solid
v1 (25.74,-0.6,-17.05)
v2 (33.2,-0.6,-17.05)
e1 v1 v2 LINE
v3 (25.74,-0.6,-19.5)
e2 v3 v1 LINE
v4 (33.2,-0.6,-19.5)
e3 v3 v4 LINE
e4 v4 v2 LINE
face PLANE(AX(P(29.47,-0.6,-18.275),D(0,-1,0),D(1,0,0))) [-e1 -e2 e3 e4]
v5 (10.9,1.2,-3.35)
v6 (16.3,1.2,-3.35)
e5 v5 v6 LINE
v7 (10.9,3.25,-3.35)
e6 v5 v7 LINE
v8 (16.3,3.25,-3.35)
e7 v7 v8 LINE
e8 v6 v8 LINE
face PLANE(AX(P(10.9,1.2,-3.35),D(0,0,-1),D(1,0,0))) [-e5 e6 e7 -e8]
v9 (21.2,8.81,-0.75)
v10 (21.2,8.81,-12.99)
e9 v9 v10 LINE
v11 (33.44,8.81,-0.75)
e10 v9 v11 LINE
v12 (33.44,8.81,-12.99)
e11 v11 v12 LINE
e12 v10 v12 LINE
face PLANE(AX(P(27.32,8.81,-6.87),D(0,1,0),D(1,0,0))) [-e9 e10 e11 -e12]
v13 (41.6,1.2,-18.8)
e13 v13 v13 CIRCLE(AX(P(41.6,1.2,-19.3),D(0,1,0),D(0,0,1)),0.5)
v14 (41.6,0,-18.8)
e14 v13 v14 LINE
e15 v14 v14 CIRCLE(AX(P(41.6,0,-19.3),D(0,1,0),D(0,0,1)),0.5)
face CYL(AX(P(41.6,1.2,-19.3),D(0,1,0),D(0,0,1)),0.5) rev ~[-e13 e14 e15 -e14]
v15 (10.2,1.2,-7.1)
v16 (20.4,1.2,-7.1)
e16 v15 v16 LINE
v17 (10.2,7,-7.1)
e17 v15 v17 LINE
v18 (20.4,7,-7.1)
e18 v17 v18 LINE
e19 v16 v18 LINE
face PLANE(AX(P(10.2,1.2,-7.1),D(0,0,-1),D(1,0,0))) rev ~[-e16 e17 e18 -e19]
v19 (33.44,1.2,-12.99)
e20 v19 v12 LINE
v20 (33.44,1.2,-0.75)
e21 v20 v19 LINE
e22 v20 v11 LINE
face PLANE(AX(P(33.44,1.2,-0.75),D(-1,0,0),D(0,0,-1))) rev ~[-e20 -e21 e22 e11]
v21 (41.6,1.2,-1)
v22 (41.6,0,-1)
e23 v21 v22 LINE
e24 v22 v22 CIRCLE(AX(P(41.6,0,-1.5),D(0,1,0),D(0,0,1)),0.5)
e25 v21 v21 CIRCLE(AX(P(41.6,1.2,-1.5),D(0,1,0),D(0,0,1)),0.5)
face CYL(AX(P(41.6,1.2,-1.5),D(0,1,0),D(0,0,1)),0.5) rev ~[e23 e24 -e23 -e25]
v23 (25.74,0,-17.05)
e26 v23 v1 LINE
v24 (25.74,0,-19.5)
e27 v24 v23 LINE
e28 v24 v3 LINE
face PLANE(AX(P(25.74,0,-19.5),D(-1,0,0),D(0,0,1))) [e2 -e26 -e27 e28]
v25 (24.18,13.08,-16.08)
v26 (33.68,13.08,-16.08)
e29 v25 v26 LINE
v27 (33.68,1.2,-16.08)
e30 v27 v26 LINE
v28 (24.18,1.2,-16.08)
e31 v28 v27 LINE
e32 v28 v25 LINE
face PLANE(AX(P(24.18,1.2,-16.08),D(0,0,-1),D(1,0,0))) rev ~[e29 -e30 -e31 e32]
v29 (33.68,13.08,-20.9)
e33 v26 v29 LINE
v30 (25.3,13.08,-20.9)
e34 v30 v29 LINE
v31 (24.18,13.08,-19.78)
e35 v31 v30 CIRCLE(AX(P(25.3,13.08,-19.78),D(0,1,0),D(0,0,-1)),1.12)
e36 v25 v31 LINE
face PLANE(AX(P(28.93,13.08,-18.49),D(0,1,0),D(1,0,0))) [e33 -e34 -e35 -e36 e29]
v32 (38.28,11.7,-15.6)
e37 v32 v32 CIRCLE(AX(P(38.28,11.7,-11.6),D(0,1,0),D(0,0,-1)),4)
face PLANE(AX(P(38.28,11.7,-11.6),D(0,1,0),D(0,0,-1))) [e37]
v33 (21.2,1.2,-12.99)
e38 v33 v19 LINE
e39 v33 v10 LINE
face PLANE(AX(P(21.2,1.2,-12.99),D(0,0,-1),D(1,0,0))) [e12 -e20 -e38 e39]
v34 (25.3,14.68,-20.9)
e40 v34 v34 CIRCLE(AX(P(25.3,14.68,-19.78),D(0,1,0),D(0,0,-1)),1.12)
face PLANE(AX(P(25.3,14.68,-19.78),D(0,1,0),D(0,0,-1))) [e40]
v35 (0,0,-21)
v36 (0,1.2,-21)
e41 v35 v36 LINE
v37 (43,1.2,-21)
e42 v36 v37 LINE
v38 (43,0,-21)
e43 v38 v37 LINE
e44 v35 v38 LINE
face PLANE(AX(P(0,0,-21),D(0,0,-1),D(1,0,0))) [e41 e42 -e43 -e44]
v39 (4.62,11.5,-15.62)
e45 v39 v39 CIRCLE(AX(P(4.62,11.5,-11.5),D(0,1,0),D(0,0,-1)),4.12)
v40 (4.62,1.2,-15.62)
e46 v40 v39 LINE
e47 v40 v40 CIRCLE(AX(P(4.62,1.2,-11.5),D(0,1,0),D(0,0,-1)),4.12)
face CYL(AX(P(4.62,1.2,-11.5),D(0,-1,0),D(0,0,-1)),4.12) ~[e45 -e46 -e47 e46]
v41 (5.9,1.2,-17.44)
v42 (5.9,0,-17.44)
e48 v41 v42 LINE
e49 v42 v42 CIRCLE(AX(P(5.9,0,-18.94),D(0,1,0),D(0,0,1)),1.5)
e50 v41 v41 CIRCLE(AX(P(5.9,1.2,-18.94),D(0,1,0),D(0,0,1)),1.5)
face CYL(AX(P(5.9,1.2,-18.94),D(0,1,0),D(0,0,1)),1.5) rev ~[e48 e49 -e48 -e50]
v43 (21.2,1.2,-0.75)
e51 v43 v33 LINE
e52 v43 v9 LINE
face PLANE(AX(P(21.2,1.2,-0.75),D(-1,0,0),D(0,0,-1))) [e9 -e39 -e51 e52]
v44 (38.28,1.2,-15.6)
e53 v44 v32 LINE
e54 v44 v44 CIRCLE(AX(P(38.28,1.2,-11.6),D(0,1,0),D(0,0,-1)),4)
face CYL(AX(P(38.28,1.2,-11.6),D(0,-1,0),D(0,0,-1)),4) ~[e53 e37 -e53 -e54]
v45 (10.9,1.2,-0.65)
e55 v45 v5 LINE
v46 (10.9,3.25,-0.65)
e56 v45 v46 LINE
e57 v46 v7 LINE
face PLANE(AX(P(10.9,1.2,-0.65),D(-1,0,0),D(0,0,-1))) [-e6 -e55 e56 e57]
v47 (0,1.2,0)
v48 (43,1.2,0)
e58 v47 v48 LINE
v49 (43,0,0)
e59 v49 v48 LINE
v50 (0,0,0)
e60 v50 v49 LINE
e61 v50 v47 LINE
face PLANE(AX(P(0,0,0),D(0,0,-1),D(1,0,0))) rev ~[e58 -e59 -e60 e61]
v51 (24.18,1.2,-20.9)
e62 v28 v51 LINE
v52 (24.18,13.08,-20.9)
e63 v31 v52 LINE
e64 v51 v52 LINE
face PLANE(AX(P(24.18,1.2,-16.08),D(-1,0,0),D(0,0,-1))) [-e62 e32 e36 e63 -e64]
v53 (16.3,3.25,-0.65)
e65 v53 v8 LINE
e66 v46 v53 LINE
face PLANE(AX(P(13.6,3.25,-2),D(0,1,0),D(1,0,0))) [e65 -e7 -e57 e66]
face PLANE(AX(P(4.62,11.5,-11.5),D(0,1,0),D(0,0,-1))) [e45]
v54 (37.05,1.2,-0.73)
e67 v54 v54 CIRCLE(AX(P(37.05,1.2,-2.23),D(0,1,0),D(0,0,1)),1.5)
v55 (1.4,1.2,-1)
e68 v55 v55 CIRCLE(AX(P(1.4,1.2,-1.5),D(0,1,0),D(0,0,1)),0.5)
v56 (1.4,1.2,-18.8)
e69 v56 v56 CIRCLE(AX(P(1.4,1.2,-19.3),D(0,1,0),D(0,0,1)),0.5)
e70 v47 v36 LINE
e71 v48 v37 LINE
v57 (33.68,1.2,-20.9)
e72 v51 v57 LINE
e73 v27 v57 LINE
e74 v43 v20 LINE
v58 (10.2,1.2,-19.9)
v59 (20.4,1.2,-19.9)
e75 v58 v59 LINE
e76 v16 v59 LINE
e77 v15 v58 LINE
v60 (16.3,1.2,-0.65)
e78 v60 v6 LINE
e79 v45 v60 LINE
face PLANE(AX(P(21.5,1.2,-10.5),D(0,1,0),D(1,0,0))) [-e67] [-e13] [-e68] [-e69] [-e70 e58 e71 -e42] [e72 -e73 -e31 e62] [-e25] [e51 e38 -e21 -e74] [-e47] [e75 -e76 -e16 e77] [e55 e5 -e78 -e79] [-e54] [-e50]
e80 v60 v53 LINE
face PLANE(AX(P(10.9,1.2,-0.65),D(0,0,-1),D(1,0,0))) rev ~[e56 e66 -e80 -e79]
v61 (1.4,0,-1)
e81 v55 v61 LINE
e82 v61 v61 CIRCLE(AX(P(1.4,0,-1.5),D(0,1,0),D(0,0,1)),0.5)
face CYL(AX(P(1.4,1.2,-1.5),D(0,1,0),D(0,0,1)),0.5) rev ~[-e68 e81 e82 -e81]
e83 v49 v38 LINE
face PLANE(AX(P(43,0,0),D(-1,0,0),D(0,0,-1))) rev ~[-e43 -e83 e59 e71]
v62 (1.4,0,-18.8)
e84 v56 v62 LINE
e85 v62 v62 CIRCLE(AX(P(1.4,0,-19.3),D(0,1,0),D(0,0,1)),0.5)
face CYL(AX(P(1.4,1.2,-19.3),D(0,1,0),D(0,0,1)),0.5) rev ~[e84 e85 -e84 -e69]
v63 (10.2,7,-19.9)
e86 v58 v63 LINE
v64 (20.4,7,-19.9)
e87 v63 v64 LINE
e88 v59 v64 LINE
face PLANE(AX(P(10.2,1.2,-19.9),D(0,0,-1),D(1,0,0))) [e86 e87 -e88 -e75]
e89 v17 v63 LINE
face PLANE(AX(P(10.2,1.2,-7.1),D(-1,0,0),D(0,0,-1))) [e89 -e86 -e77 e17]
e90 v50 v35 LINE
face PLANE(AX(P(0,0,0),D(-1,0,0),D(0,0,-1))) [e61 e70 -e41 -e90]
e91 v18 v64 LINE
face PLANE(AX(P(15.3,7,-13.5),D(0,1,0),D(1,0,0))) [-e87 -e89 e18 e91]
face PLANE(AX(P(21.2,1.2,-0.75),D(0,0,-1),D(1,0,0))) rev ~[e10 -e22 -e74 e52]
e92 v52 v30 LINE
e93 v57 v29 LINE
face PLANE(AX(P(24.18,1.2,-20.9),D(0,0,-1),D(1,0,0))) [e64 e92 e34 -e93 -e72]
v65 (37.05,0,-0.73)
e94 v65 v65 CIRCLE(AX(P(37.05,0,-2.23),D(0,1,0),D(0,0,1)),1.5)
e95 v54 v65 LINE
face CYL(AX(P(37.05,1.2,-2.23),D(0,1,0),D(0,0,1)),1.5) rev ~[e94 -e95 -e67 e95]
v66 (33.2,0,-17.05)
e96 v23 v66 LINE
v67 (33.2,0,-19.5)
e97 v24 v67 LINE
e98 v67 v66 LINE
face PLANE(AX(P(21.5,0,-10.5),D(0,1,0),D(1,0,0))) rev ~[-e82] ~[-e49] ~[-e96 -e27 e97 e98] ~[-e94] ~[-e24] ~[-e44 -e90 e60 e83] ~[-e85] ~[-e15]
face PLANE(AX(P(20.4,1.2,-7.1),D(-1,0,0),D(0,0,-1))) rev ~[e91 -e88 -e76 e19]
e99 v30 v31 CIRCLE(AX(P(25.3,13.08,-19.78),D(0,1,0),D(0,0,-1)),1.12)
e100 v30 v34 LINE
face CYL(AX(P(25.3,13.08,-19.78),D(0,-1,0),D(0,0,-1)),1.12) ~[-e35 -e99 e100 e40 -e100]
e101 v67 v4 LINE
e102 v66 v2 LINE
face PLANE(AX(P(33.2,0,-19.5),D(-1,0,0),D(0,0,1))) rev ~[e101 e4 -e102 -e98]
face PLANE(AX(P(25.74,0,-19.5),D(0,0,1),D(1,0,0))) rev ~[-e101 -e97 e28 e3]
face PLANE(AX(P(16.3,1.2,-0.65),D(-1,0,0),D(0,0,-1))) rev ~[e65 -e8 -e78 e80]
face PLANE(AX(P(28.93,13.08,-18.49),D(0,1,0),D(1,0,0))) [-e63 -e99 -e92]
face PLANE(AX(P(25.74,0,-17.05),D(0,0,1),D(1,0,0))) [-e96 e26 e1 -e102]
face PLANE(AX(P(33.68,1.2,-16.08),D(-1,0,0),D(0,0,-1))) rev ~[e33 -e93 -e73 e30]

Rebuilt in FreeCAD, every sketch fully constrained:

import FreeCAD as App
import Part
import Sketcher

V = App.Vector
Q = App.Units.Quantity


def add_polygon(sketch, points):
    """Adds a closed chain of lines whose ends are joined by coincident constraints."""
    first, n = sketch.GeometryCount, len(points)
    for a, b in zip(points, points[1:] + points[:1]):
        sketch.addGeometry(Part.LineSegment(App.Vector(*a, 0), App.Vector(*b, 0)), False)
    for i in range(n):
        sketch.addConstraint(Sketcher.Constraint("Coincident", first + i, 2, first + (i + 1) % n, 1))

doc = App.newDocument("Part")
body = doc.addObject("PartDesign::Body", "Body")

# Sketch on XZ plane
sketch1 = doc.addObject("Sketcher::SketchObject", "Sketch")
body.addObject(sketch1)
sketch1.AttachmentSupport = (doc.XZ_Plane, [""])
sketch1.MapMode = "FlatFace"
add_polygon(sketch1, [(0, -21), (0, 0), (43, 0), (43, -21)])  # lines 0-3
sketch1.addConstraint(Sketcher.Constraint("Vertical", 0))
sketch1.addConstraint(Sketcher.Constraint("Horizontal", 1))
sketch1.addConstraint(Sketcher.Constraint("Vertical", 2))
sketch1.addConstraint(Sketcher.Constraint("Horizontal", 3))
sketch1.addConstraint(Sketcher.Constraint("Coincident", 0, 2, -1, 1))
sketch1.addConstraint(Sketcher.Constraint("DistanceX", 1, 1, 1, 2, Q("43 mm")))
sketch1.addConstraint(Sketcher.Constraint("DistanceY", 0, 1, 0, 2, Q("21 mm")))
pad1 = doc.addObject("PartDesign::Pad", "Pad")
body.addObject(pad1)
pad1.Profile = sketch1
pad1.Length = 1.2
pad1.Reversed = True

# Sketch on XZ plane
sketch2 = doc.addObject("Sketcher::SketchObject", "Sketch001")
body.addObject(sketch2)
sketch2.AttachmentSupport = (doc.XZ_Plane, [""])
sketch2.MapMode = "FlatFace"
sketch2.AttachmentOffset = App.Placement(V(0, 0, -1.2), App.Rotation())
sketch2.addGeometry(Part.Circle(V(1.4, -19.3, 0), V(0, 0, 1), 0.5), False)
sketch2.addGeometry(Part.Circle(V(1.4, -1.5, 0), V(0, 0, 1), 0.5), False)
sketch2.addGeometry(Part.Circle(V(41.6, -19.3, 0), V(0, 0, 1), 0.5), False)
sketch2.addGeometry(Part.Circle(V(41.6, -1.5, 0), V(0, 0, 1), 0.5), False)
sketch2.addConstraint(Sketcher.Constraint("Equal", 0, 1))
sketch2.addConstraint(Sketcher.Constraint("Equal", 1, 2))
sketch2.addConstraint(Sketcher.Constraint("Equal", 2, 3))
sketch2.addConstraint(Sketcher.Constraint("Horizontal", 0, 3, 2, 3))
sketch2.addConstraint(Sketcher.Constraint("Horizontal", 1, 3, 3, 3))
sketch2.addConstraint(Sketcher.Constraint("Vertical", 0, 3, 1, 3))
sketch2.addConstraint(Sketcher.Constraint("Vertical", 2, 3, 3, 3))
sketch2.addConstraint(Sketcher.Constraint("Diameter", 0, Q("1 mm")))
sketch2.addConstraint(Sketcher.Constraint("DistanceX", -1, 1, 0, 3, Q("1.4 mm")))
sketch2.addConstraint(Sketcher.Constraint("DistanceY", 0, 3, -1, 1, Q("19.3 mm")))
sketch2.addConstraint(Sketcher.Constraint("DistanceY", 1, 3, -1, 1, Q("1.5 mm")))
sketch2.addConstraint(Sketcher.Constraint("DistanceX", -1, 1, 2, 3, Q("41.6 mm")))
pocket1 = doc.addObject("PartDesign::Pocket", "Pocket")
body.addObject(pocket1)
pocket1.Profile = sketch2
pocket1.Type = "ThroughAll"
pocket1.Reversed = True

# Sketch on XZ plane
sketch3 = doc.addObject("Sketcher::SketchObject", "Sketch002")
body.addObject(sketch3)
sketch3.AttachmentSupport = (doc.XZ_Plane, [""])
sketch3.MapMode = "FlatFace"
sketch3.AttachmentOffset = App.Placement(V(0, 0, -1.2), App.Rotation())
sketch3.addGeometry(Part.Circle(V(5.9, -18.9, 0), V(0, 0, 1), 1.5), False)
sketch3.addGeometry(Part.Circle(V(37, -2.2, 0), V(0, 0, 1), 1.5), False)
sketch3.addConstraint(Sketcher.Constraint("Equal", 0, 1))
sketch3.addConstraint(Sketcher.Constraint("Diameter", 0, Q("3 mm")))
sketch3.addConstraint(Sketcher.Constraint("DistanceX", -1, 1, 0, 3, Q("5.9 mm")))
sketch3.addConstraint(Sketcher.Constraint("DistanceY", 0, 3, -1, 1, Q("18.94 mm")))
sketch3.addConstraint(Sketcher.Constraint("DistanceX", -1, 1, 1, 3, Q("37.05 mm")))
sketch3.addConstraint(Sketcher.Constraint("DistanceY", 1, 3, -1, 1, Q("2.23 mm")))
pocket2 = doc.addObject("PartDesign::Pocket", "Pocket001")
body.addObject(pocket2)
pocket2.Profile = sketch3
pocket2.Type = "ThroughAll"
pocket2.Reversed = True

# Sketch on XZ plane
sketch4 = doc.addObject("Sketcher::SketchObject", "Sketch003")
body.addObject(sketch4)
sketch4.AttachmentSupport = (doc.XZ_Plane, [""])
sketch4.MapMode = "FlatFace"
sketch4.AttachmentOffset = App.Placement(V(0, 0, -1.2), App.Rotation())
add_polygon(sketch4, [(24.2, -20.9), (24.2, -16.1), (33.7, -16.1), (33.7, -20.9)])  # lines 0-3
sketch4.addConstraint(Sketcher.Constraint("Vertical", 0))
sketch4.addConstraint(Sketcher.Constraint("Horizontal", 1))
sketch4.addConstraint(Sketcher.Constraint("Vertical", 2))
sketch4.addConstraint(Sketcher.Constraint("Horizontal", 3))
sketch4.addConstraint(Sketcher.Constraint("DistanceX", 1, 1, 1, 2, Q("9.5 mm")))
sketch4.addConstraint(Sketcher.Constraint("DistanceY", 0, 1, 0, 2, Q("4.82 mm")))
sketch4.addConstraint(Sketcher.Constraint("DistanceY", 2, 2, -1, 1, Q("20.9 mm")))
sketch4.addConstraint(Sketcher.Constraint("DistanceX", -1, 1, 0, 2, Q("24.18 mm")))
pad2 = doc.addObject("PartDesign::Pad", "Pad001")
body.addObject(pad2)
pad2.Profile = sketch4
pad2.Length = 11.88
pad2.Reversed = True

# Sketch on XZ plane
sketch5 = doc.addObject("Sketcher::SketchObject", "Sketch004")
body.addObject(sketch5)
sketch5.AttachmentSupport = (doc.XZ_Plane, [""])
sketch5.MapMode = "FlatFace"
sketch5.AttachmentOffset = App.Placement(V(0, 0, -13.08), App.Rotation())
sketch5.addGeometry(Part.Circle(V(25.3, -19.8, 0), V(0, 0, 1), 1.1), False)
sketch5.addConstraint(Sketcher.Constraint("Diameter", 0, Q("2.24 mm")))
sketch5.addConstraint(Sketcher.Constraint("DistanceX", -1, 1, 0, 3, Q("25.3 mm")))
sketch5.addConstraint(Sketcher.Constraint("DistanceY", 0, 3, -1, 1, Q("19.78 mm")))
pad3 = doc.addObject("PartDesign::Pad", "Pad002")
body.addObject(pad3)
pad3.Profile = sketch5
pad3.Length = 1.6
pad3.Reversed = True

# Sketch on XZ plane
sketch6 = doc.addObject("Sketcher::SketchObject", "Sketch005")
body.addObject(sketch6)
sketch6.AttachmentSupport = (doc.XZ_Plane, [""])
sketch6.MapMode = "FlatFace"
add_polygon(sketch6, [(25.7, -17.1), (25.7, -19.5), (33.2, -19.5), (33.2, -17.1)])  # lines 0-3
sketch6.addConstraint(Sketcher.Constraint("Vertical", 0))
sketch6.addConstraint(Sketcher.Constraint("Horizontal", 1))
sketch6.addConstraint(Sketcher.Constraint("Vertical", 2))
sketch6.addConstraint(Sketcher.Constraint("Horizontal", 3))
sketch6.addConstraint(Sketcher.Constraint("DistanceX", 1, 1, 1, 2, Q("7.46 mm")))
sketch6.addConstraint(Sketcher.Constraint("DistanceY", 0, 2, 0, 1, Q("2.45 mm")))
sketch6.addConstraint(Sketcher.Constraint("DistanceY", 0, 2, -1, 1, Q("19.5 mm")))
sketch6.addConstraint(Sketcher.Constraint("DistanceX", -1, 1, 1, 2, Q("33.2 mm")))
pad4 = doc.addObject("PartDesign::Pad", "Pad003")
body.addObject(pad4)
pad4.Profile = sketch6
pad4.Length = 0.6

# Sketch on XZ plane
sketch7 = doc.addObject("Sketcher::SketchObject", "Sketch006")
body.addObject(sketch7)
sketch7.AttachmentSupport = (doc.XZ_Plane, [""])
sketch7.MapMode = "FlatFace"
sketch7.AttachmentOffset = App.Placement(V(0, 0, -1.2), App.Rotation())
add_polygon(sketch7, [(21, -13), (21, -1), (33, -1), (33, -13)])  # lines 0-3
sketch7.addConstraint(Sketcher.Constraint("Vertical", 0))
sketch7.addConstraint(Sketcher.Constraint("Horizontal", 1))
sketch7.addConstraint(Sketcher.Constraint("Vertical", 2))
sketch7.addConstraint(Sketcher.Constraint("Horizontal", 3))
sketch7.addConstraint(Sketcher.Constraint("Equal", 3, 0))
sketch7.addConstraint(Sketcher.Constraint("DistanceX", 1, 1, 1, 2, Q("12.24 mm")))
sketch7.addConstraint(Sketcher.Constraint("DistanceX", -1, 1, 0, 2, Q("21.2 mm")))
sketch7.addConstraint(Sketcher.Constraint("DistanceY", 0, 2, -1, 1, Q("0.75 mm")))
pad5 = doc.addObject("PartDesign::Pad", "Pad004")
body.addObject(pad5)
pad5.Profile = sketch7
pad5.Length = 7.61
pad5.Reversed = True

# Sketch on XZ plane
sketch8 = doc.addObject("Sketcher::SketchObject", "Sketch007")
body.addObject(sketch8)
sketch8.AttachmentSupport = (doc.XZ_Plane, [""])
sketch8.MapMode = "FlatFace"
sketch8.AttachmentOffset = App.Placement(V(0, 0, -1.2), App.Rotation())
add_polygon(sketch8, [(10, -20), (10, -7), (20, -7), (20, -20)])  # lines 0-3
sketch8.addConstraint(Sketcher.Constraint("Vertical", 0))
sketch8.addConstraint(Sketcher.Constraint("Horizontal", 1))
sketch8.addConstraint(Sketcher.Constraint("Vertical", 2))
sketch8.addConstraint(Sketcher.Constraint("Horizontal", 3))
sketch8.addConstraint(Sketcher.Constraint("DistanceX", 1, 1, 1, 2, Q("10.2 mm")))
sketch8.addConstraint(Sketcher.Constraint("DistanceY", 0, 1, 0, 2, Q("12.8 mm")))
sketch8.addConstraint(Sketcher.Constraint("DistanceX", -1, 1, 0, 2, Q("10.2 mm")))
sketch8.addConstraint(Sketcher.Constraint("DistanceY", 0, 2, -1, 1, Q("7.1 mm")))
pad6 = doc.addObject("PartDesign::Pad", "Pad005")
body.addObject(pad6)
pad6.Profile = sketch8
pad6.Length = 5.8
pad6.Reversed = True

# Sketch on XZ plane
sketch9 = doc.addObject("Sketcher::SketchObject", "Sketch008")
body.addObject(sketch9)
sketch9.AttachmentSupport = (doc.XZ_Plane, [""])
sketch9.MapMode = "FlatFace"
sketch9.AttachmentOffset = App.Placement(V(0, 0, -1.2), App.Rotation())
add_polygon(sketch9, [(10.9, -3.4), (10.9, -0.7), (16.3, -0.7), (16.3, -3.4)])  # lines 0-3
sketch9.addConstraint(Sketcher.Constraint("Vertical", 0))
sketch9.addConstraint(Sketcher.Constraint("Horizontal", 1))
sketch9.addConstraint(Sketcher.Constraint("Vertical", 2))
sketch9.addConstraint(Sketcher.Constraint("Horizontal", 3))
sketch9.addConstraint(Sketcher.Constraint("DistanceX", 1, 1, 1, 2, Q("5.4 mm")))
sketch9.addConstraint(Sketcher.Constraint("DistanceY", 0, 1, 0, 2, Q("2.7 mm")))
sketch9.addConstraint(Sketcher.Constraint("DistanceX", -1, 1, 0, 2, Q("10.9 mm")))
sketch9.addConstraint(Sketcher.Constraint("DistanceY", 0, 2, -1, 1, Q("0.65 mm")))
pad7 = doc.addObject("PartDesign::Pad", "Pad006")
body.addObject(pad7)
pad7.Profile = sketch9
pad7.Length = 2.05
pad7.Reversed = True

# Sketch on XZ plane
sketch10 = doc.addObject("Sketcher::SketchObject", "Sketch009")
body.addObject(sketch10)
sketch10.AttachmentSupport = (doc.XZ_Plane, [""])
sketch10.MapMode = "FlatFace"
sketch10.AttachmentOffset = App.Placement(V(0, 0, -1.2), App.Rotation())
sketch10.addGeometry(Part.Circle(V(4.6, -11.5, 0), V(0, 0, 1), 4.1), False)
sketch10.addConstraint(Sketcher.Constraint("Diameter", 0, Q("8.24 mm")))
sketch10.addConstraint(Sketcher.Constraint("DistanceY", 0, 3, -1, 1, Q("11.5 mm")))
sketch10.addConstraint(Sketcher.Constraint("DistanceX", -1, 1, 0, 3, Q("4.62 mm")))
pad8 = doc.addObject("PartDesign::Pad", "Pad007")
body.addObject(pad8)
pad8.Profile = sketch10
pad8.Length = 10.3
pad8.Reversed = True

# Sketch on XZ plane
sketch11 = doc.addObject("Sketcher::SketchObject", "Sketch010")
body.addObject(sketch11)
sketch11.AttachmentSupport = (doc.XZ_Plane, [""])
sketch11.MapMode = "FlatFace"
sketch11.AttachmentOffset = App.Placement(V(0, 0, -1.2), App.Rotation())
sketch11.addGeometry(Part.Circle(V(38.3, -11.6, 0), V(0, 0, 1), 4), False)
sketch11.addConstraint(Sketcher.Constraint("Diameter", 0, Q("8 mm")))
sketch11.addConstraint(Sketcher.Constraint("DistanceY", 0, 3, -1, 1, Q("11.6 mm")))
sketch11.addConstraint(Sketcher.Constraint("DistanceX", -1, 1, 0, 3, Q("38.28 mm")))
pad9 = doc.addObject("PartDesign::Pad", "Pad008")
body.addObject(pad9)
pad9.Profile = sketch11
pad9.Length = 10.5
pad9.Reversed = True

doc.recompute()
